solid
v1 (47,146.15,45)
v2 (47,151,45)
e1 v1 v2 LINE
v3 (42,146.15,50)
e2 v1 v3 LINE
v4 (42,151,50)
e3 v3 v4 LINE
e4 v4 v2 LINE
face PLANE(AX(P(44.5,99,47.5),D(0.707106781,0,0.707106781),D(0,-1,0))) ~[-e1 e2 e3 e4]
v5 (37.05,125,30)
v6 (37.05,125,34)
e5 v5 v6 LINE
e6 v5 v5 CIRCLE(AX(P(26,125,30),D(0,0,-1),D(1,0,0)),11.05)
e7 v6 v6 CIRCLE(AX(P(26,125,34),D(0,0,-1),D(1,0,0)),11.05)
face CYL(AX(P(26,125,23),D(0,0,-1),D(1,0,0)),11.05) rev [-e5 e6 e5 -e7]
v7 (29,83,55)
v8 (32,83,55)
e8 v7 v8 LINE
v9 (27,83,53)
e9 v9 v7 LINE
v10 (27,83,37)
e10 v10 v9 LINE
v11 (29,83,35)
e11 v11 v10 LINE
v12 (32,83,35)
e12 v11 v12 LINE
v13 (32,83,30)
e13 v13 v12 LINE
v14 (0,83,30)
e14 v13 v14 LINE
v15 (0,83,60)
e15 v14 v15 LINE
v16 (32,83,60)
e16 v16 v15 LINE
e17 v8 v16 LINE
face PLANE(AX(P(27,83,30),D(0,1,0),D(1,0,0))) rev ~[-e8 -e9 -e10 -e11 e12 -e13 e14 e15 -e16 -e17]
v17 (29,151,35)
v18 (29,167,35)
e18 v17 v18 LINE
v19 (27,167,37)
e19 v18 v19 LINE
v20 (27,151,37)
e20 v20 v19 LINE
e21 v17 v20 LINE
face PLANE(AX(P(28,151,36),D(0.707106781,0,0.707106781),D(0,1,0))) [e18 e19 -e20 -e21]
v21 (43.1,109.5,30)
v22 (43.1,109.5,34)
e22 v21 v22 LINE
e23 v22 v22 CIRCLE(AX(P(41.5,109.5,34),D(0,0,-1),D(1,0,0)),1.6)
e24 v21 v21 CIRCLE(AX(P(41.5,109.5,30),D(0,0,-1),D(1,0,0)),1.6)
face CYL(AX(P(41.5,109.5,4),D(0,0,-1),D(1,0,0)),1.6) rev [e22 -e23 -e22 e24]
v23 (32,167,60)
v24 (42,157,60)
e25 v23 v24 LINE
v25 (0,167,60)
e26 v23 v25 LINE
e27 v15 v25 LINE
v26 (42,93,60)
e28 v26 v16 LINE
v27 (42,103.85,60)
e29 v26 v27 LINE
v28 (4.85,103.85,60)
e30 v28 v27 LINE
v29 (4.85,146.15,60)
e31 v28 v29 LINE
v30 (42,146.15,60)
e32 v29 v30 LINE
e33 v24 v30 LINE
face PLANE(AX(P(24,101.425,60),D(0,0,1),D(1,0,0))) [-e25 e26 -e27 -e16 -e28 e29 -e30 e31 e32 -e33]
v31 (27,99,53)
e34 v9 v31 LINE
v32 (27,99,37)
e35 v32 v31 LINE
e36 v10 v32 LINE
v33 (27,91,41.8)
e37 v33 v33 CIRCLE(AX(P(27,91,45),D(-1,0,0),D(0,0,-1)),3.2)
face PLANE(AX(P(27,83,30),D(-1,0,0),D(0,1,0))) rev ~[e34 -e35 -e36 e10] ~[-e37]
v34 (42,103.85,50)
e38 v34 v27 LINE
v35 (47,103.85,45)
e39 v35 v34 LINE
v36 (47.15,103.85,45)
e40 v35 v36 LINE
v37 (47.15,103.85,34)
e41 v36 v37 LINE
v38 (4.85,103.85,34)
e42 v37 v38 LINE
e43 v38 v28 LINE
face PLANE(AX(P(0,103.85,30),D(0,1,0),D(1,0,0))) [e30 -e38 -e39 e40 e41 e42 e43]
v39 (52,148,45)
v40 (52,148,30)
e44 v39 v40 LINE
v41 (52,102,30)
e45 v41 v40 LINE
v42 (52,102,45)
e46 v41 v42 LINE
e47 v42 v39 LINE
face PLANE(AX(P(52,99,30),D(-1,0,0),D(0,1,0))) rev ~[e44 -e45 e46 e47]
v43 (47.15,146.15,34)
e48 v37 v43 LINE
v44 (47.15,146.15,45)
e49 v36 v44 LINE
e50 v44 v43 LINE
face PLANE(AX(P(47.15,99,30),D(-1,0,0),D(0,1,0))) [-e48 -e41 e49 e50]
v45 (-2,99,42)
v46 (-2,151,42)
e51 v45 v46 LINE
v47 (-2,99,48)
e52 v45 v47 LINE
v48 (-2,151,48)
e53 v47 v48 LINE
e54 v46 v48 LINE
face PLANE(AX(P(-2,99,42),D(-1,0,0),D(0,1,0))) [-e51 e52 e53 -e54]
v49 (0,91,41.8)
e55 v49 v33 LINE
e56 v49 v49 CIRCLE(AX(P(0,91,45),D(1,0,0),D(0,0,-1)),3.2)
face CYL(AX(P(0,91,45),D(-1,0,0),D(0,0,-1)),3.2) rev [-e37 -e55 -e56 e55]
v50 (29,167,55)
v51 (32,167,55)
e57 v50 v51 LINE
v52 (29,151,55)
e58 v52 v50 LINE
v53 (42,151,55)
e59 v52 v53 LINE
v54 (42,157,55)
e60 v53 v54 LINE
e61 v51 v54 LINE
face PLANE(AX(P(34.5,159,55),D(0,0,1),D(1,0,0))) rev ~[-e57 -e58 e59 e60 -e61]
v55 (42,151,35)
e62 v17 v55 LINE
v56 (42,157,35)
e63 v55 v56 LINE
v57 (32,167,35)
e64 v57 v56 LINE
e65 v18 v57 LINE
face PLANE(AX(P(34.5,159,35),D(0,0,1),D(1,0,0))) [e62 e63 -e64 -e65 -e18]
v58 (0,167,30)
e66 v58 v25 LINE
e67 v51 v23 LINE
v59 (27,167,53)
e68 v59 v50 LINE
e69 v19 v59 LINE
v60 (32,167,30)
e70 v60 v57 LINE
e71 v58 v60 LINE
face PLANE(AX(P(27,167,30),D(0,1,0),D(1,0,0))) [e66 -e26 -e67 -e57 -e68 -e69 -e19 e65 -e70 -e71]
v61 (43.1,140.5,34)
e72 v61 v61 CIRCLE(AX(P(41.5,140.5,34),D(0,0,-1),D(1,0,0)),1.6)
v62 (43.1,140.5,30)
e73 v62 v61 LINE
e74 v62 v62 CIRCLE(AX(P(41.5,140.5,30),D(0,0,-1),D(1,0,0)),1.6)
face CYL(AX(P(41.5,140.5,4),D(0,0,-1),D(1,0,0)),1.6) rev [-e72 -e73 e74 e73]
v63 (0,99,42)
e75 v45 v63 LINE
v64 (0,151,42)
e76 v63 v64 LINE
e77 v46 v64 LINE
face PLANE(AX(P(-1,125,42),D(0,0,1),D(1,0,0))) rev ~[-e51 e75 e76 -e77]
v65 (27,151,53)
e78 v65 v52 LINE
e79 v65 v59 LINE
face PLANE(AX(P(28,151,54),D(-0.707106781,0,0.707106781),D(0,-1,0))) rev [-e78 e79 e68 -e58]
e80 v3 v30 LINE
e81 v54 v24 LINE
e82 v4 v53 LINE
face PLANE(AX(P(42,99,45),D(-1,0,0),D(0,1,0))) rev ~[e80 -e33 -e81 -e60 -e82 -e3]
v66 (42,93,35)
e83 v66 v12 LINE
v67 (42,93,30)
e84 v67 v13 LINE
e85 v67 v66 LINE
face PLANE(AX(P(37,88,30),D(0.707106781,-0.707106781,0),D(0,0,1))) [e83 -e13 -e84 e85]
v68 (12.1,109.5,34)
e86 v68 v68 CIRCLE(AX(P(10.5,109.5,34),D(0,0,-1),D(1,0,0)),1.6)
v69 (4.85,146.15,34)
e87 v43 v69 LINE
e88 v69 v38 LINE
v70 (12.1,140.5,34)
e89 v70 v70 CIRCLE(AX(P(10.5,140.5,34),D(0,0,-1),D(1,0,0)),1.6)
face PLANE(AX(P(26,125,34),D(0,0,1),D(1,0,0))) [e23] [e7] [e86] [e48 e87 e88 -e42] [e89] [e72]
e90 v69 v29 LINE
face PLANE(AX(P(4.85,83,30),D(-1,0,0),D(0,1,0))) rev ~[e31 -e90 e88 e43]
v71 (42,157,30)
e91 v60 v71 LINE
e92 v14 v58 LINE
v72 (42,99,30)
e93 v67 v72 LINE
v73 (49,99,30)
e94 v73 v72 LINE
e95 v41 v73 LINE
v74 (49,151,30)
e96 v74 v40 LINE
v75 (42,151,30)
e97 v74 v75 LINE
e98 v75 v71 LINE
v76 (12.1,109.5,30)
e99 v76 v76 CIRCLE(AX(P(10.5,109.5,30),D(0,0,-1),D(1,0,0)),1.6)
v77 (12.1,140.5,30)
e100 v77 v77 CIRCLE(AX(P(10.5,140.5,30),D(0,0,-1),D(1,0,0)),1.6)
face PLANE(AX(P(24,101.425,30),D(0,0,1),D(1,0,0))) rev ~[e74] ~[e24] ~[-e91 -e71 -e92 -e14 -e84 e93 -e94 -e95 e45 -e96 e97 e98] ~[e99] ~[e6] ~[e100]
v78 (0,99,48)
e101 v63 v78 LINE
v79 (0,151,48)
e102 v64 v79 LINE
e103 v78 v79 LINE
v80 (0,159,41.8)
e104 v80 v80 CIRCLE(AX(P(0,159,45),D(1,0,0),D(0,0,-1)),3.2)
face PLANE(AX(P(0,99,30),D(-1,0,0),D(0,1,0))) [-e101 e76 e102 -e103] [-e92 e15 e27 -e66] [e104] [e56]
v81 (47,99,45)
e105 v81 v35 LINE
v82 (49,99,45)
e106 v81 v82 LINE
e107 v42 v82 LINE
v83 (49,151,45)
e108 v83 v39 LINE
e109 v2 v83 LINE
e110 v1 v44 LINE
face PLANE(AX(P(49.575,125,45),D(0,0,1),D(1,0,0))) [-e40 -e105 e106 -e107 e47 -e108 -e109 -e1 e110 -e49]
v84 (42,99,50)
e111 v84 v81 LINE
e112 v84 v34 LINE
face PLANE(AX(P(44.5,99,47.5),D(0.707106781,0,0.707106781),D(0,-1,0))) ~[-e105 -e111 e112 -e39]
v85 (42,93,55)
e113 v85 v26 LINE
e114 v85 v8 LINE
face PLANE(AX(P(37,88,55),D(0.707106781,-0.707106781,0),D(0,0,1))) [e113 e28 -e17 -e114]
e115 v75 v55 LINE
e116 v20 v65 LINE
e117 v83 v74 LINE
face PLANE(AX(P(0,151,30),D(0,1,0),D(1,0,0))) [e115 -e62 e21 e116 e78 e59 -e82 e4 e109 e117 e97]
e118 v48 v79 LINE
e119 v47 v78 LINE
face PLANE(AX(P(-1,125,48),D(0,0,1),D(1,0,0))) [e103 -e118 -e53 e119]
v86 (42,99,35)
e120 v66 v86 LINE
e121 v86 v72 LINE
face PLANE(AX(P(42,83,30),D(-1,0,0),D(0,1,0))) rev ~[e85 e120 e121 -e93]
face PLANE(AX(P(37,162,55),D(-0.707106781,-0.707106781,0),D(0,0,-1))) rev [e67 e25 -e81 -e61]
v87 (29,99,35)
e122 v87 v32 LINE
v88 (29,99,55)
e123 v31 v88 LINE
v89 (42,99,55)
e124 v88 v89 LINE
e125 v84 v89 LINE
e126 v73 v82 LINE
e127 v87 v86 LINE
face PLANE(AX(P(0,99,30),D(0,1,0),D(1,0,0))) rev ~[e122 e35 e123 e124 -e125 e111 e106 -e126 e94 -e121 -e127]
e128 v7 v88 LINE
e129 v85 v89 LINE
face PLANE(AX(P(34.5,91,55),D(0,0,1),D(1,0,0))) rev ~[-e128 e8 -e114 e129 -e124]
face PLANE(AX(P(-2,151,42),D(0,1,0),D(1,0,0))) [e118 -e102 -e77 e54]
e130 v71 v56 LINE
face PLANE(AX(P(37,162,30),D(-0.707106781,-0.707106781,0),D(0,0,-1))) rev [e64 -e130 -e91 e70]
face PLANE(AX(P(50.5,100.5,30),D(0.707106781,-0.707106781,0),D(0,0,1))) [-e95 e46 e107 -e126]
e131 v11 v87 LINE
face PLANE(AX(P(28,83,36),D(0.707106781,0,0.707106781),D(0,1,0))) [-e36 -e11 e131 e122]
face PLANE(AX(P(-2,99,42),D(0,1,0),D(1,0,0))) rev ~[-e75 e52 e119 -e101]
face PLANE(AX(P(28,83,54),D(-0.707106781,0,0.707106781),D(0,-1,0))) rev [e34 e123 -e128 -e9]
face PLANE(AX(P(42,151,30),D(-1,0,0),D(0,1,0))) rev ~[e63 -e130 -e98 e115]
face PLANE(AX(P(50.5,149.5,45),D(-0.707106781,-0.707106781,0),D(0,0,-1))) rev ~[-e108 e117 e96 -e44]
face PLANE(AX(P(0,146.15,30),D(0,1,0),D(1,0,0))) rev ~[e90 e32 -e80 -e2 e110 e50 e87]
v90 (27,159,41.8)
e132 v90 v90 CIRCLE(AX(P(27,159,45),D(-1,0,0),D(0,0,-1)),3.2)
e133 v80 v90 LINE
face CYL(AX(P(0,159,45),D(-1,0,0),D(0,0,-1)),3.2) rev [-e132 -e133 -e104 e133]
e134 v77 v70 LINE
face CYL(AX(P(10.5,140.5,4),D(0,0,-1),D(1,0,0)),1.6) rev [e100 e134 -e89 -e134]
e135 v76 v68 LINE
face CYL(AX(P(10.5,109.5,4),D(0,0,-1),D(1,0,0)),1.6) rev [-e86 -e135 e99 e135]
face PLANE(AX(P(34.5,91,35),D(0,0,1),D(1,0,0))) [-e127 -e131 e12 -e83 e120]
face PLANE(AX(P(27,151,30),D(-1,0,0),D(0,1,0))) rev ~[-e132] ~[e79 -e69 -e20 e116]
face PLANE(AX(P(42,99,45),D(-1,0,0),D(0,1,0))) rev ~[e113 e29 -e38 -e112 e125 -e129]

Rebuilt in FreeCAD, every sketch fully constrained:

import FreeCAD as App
import Part
import Sketcher

V = App.Vector
Q = App.Units.Quantity


def edges_at(feature, points):
    """Names of the edges that pass closest to the given points."""
    edges = feature.Shape.Edges
    near = lambda p: min(range(len(edges)), key=lambda i: edges[i].distToShape(Part.Vertex(*p))[0])
    return sorted({f"Edge{near(p) + 1}" for p in points})

doc = App.newDocument("Part")
body = doc.addObject("PartDesign::Body", "Body")

# Sketch on XY plane
sketch1 = doc.addObject("Sketcher::SketchObject", "Sketch")
body.addObject(sketch1)
sketch1.AttachmentSupport = (doc.XY_Plane, [""])
sketch1.MapMode = "FlatFace"
sketch1.AttachmentOffset = App.Placement(V(0, 0, 45), App.Rotation())
sketch1.addGeometry(Part.LineSegment(V(42, 151, 0), V(42, 99, 0)), False)
sketch1.addGeometry(Part.LineSegment(V(42, 99, 0), V(54, 99, 0)), False)
sketch1.addGeometry(Part.LineSegment(V(54, 99, 0), V(54, 151, 0)), False)
sketch1.addGeometry(Part.LineSegment(V(54, 151, 0), V(42, 151, 0)), False)
sketch1.addConstraint(Sketcher.Constraint("Coincident", 0, 2, 1, 1))
sketch1.addConstraint(Sketcher.Constraint("Coincident", 1, 2, 2, 1))
sketch1.addConstraint(Sketcher.Constraint("Coincident", 2, 2, 3, 1))
sketch1.addConstraint(Sketcher.Constraint("Coincident", 3, 2, 0, 1))
sketch1.addConstraint(Sketcher.Constraint("Vertical", 0))
sketch1.addConstraint(Sketcher.Constraint("Horizontal", 1))
sketch1.addConstraint(Sketcher.Constraint("Vertical", 2))
sketch1.addConstraint(Sketcher.Constraint("Horizontal", 3))
sketch1.addConstraint(Sketcher.Constraint("DistanceX", 1, 1, 1, 2, Q("12 mm")))
sketch1.addConstraint(Sketcher.Constraint("DistanceY", 0, 2, 0, 1, Q("52 mm")))
sketch1.addConstraint(Sketcher.Constraint("DistanceX", -1, 1, 0, 2, Q("42 mm")))
sketch1.addConstraint(Sketcher.Constraint("DistanceY", -1, 1, 0, 2, Q("99 mm")))
pad1 = doc.addObject("PartDesign::Pad", "Pad")
body.addObject(pad1)
pad1.Profile = sketch1
pad1.Length = 15
doc.recompute()

chamfer = doc.addObject("PartDesign::Chamfer", "Chamfer")
body.addObject(chamfer)
chamfer.Base = (pad1, edges_at(pad1, [(42, 125, 45)]))
chamfer.Size = 5
body2 = doc.addObject("PartDesign::Body", "Body001")

# Sketch on YZ plane
sketch2 = doc.addObject("Sketcher::SketchObject", "Sketch001")
body2.addObject(sketch2)
sketch2.AttachmentSupport = (doc.getObject("YZ_Plane001"), [""])
sketch2.MapMode = "FlatFace"
sketch2.addGeometry(Part.Circle(V(91, 45, 0), V(0, 0, 1), 3.2), False)
sketch2.addConstraint(Sketcher.Constraint("Diameter", 0, Q("6.4 mm")))
sketch2.addConstraint(Sketcher.Constraint("DistanceX", -1, 1, 0, 3, Q("91 mm")))
sketch2.addConstraint(Sketcher.Constraint("DistanceY", -1, 1, 0, 3, Q("45 mm")))
pad2 = doc.addObject("PartDesign::Pad", "Pad001")
body2.addObject(pad2)
pad2.Profile = sketch2
pad2.Length = 46
body3 = doc.addObject("PartDesign::Body", "Body002")
body3.AllowCompound = True

# Sketch on YZ plane
sketch3 = doc.addObject("Sketcher::SketchObject", "Sketch002")
body3.addObject(sketch3)
sketch3.AttachmentSupport = (doc.getObject("YZ_Plane002"), [""])
sketch3.MapMode = "FlatFace"
sketch3.addGeometry(Part.Circle(V(159, 45, 0), V(0, 0, 1), 3.2), False)
sketch3.addConstraint(Sketcher.Constraint("Diameter", 0, Q("6.4 mm")))
sketch3.addConstraint(Sketcher.Constraint("DistanceX", -1, 1, 0, 3, Q("159 mm")))
sketch3.addConstraint(Sketcher.Constraint("DistanceY", -1, 1, 0, 3, Q("45 mm")))
pad3 = doc.addObject("PartDesign::Pad", "Pad002")
body3.addObject(pad3)
pad3.Profile = sketch3
pad3.Length = 46
doc.recompute()

boolean = doc.addObject("PartDesign::Boolean", "Boolean")
body3.addObject(boolean)
boolean.Type = "Fuse"
boolean.addObjects([body2])
body4 = doc.addObject("PartDesign::Body", "Body003")

# Sketch on XY plane
sketch4 = doc.addObject("Sketcher::SketchObject", "Sketch003")
body4.addObject(sketch4)
sketch4.AttachmentSupport = (doc.getObject("XY_Plane003"), [""])
sketch4.MapMode = "FlatFace"
sketch4.AttachmentOffset = App.Placement(V(0, 0, 23), App.Rotation())
sketch4.addGeometry(Part.Circle(V(26, 125, 0), V(0, 0, 1), 11.05), False)
sketch4.addConstraint(Sketcher.Constraint("Diameter", 0, Q("22.1 mm")))
sketch4.addConstraint(Sketcher.Constraint("DistanceX", -1, 1, 0, 3, Q("26 mm")))
sketch4.addConstraint(Sketcher.Constraint("DistanceY", -1, 1, 0, 3, Q("125 mm")))
pad4 = doc.addObject("PartDesign::Pad", "Pad003")
body4.addObject(pad4)
pad4.Profile = sketch4
pad4.Length = 23
body5 = doc.addObject("PartDesign::Body", "Body004")

# Sketch on XY plane
sketch5 = doc.addObject("Sketcher::SketchObject", "Sketch004")
body5.addObject(sketch5)
sketch5.AttachmentSupport = (doc.getObject("XY_Plane004"), [""])
sketch5.MapMode = "FlatFace"
sketch5.AttachmentOffset = App.Placement(V(0, 0, 4), App.Rotation())
sketch5.addGeometry(Part.Circle(V(10.5, 109.5, 0), V(0, 0, 1), 1.6), False)
sketch5.addConstraint(Sketcher.Constraint("Diameter", 0, Q("3.2 mm")))
sketch5.addConstraint(Sketcher.Constraint("DistanceX", -1, 1, 0, 3, Q("10.5 mm")))
sketch5.addConstraint(Sketcher.Constraint("DistanceY", -1, 1, 0, 3, Q("109.5 mm")))
pad5 = doc.addObject("PartDesign::Pad", "Pad004")
body5.addObject(pad5)
pad5.Profile = sketch5
pad5.Length = 47
body6 = doc.addObject("PartDesign::Body", "Body005")

# Sketch on XY plane
sketch6 = doc.addObject("Sketcher::SketchObject", "Sketch005")
body6.addObject(sketch6)
sketch6.AttachmentSupport = (doc.getObject("XY_Plane005"), [""])
sketch6.MapMode = "FlatFace"
sketch6.AttachmentOffset = App.Placement(V(0, 0, 4), App.Rotation())
sketch6.addGeometry(Part.Circle(V(10.5, 140.5, 0), V(0, 0, 1), 1.6), False)
sketch6.addConstraint(Sketcher.Constraint("Diameter", 0, Q("3.2 mm")))
sketch6.addConstraint(Sketcher.Constraint("DistanceX", -1, 1, 0, 3, Q("10.5 mm")))
sketch6.addConstraint(Sketcher.Constraint("DistanceY", -1, 1, 0, 3, Q("140.5 mm")))
pad6 = doc.addObject("PartDesign::Pad", "Pad005")
body6.addObject(pad6)
pad6.Profile = sketch6
pad6.Length = 47
body7 = doc.addObject("PartDesign::Body", "Body006")

# Sketch on XY plane
sketch7 = doc.addObject("Sketcher::SketchObject", "Sketch006")
body7.addObject(sketch7)
sketch7.AttachmentSupport = (doc.getObject("XY_Plane006"), [""])
sketch7.MapMode = "FlatFace"
sketch7.AttachmentOffset = App.Placement(V(0, 0, 4), App.Rotation())
sketch7.addGeometry(Part.Circle(V(41.5, 140.5, 0), V(0, 0, 1), 1.6), False)
sketch7.addConstraint(Sketcher.Constraint("Diameter", 0, Q("3.2 mm")))
sketch7.addConstraint(Sketcher.Constraint("DistanceX", -1, 1, 0, 3, Q("41.5 mm")))
sketch7.addConstraint(Sketcher.Constraint("DistanceY", -1, 1, 0, 3, Q("140.5 mm")))
pad7 = doc.addObject("PartDesign::Pad", "Pad006")
body7.addObject(pad7)
pad7.Profile = sketch7
pad7.Length = 47
body8 = doc.addObject("PartDesign::Body", "Body007")
body8.AllowCompound = True

# Sketch on XY plane
sketch8 = doc.addObject("Sketcher::SketchObject", "Sketch007")
body8.addObject(sketch8)
sketch8.AttachmentSupport = (doc.getObject("XY_Plane007"), [""])
sketch8.MapMode = "FlatFace"
sketch8.AttachmentOffset = App.Placement(V(0, 0, 4), App.Rotation())
sketch8.addGeometry(Part.Circle(V(41.5, 109.5, 0), V(0, 0, 1), 1.6), False)
sketch8.addConstraint(Sketcher.Constraint("Diameter", 0, Q("3.2 mm")))
sketch8.addConstraint(Sketcher.Constraint("DistanceX", -1, 1, 0, 3, Q("41.5 mm")))
sketch8.addConstraint(Sketcher.Constraint("DistanceY", -1, 1, 0, 3, Q("109.5 mm")))
pad8 = doc.addObject("PartDesign::Pad", "Pad007")
body8.addObject(pad8)
pad8.Profile = sketch8
pad8.Length = 47
doc.recompute()

boolean2 = doc.addObject("PartDesign::Boolean", "Boolean001")
body8.addObject(boolean2)
boolean2.Type = "Fuse"
boolean2.addObjects([body5])
doc.recompute()

boolean3 = doc.addObject("PartDesign::Boolean", "Boolean002")
body8.addObject(boolean3)
boolean3.Type = "Fuse"
boolean3.addObjects([body6])
doc.recompute()

boolean4 = doc.addObject("PartDesign::Boolean", "Boolean003")
body8.addObject(boolean4)
boolean4.Type = "Fuse"
boolean4.addObjects([body7])
body9 = doc.addObject("PartDesign::Body", "Body008")

# Sketch on XY plane
sketch9 = doc.addObject("Sketcher::SketchObject", "Sketch008")
body9.addObject(sketch9)
sketch9.AttachmentSupport = (doc.getObject("XY_Plane008"), [""])
sketch9.MapMode = "FlatFace"
sketch9.AttachmentOffset = App.Placement(V(0, 0, 30), App.Rotation())
sketch9.addGeometry(Part.LineSegment(V(0, 151, 0), V(0, 99, 0)), False)
sketch9.addGeometry(Part.LineSegment(V(0, 99, 0), V(52, 99, 0)), False)
sketch9.addGeometry(Part.LineSegment(V(52, 99, 0), V(52, 151, 0)), False)
sketch9.addGeometry(Part.LineSegment(V(52, 151, 0), V(0, 151, 0)), False)
sketch9.addConstraint(Sketcher.Constraint("Coincident", 0, 2, 1, 1))
sketch9.addConstraint(Sketcher.Constraint("Coincident", 1, 2, 2, 1))
sketch9.addConstraint(Sketcher.Constraint("Coincident", 2, 2, 3, 1))
sketch9.addConstraint(Sketcher.Constraint("Coincident", 3, 2, 0, 1))
sketch9.addConstraint(Sketcher.Constraint("Vertical", 0))
sketch9.addConstraint(Sketcher.Constraint("Horizontal", 1))
sketch9.addConstraint(Sketcher.Constraint("Vertical", 2))
sketch9.addConstraint(Sketcher.Constraint("Horizontal", 3))
sketch9.addConstraint(Sketcher.Constraint("PointOnObject", 0, 2, -2))
sketch9.addConstraint(Sketcher.Constraint("Equal", 3, 0))
sketch9.addConstraint(Sketcher.Constraint("DistanceX", 1, 1, 1, 2, Q("52 mm")))
sketch9.addConstraint(Sketcher.Constraint("DistanceY", -1, 1, 0, 2, Q("99 mm")))
pad9 = doc.addObject("PartDesign::Pad", "Pad008")
body9.addObject(pad9)
pad9.Profile = sketch9
pad9.Length = 4
doc.recompute()

boolean5 = doc.addObject("PartDesign::Boolean", "Boolean004")
body9.addObject(boolean5)
boolean5.Type = "Cut"
boolean5.addObjects([body8])
doc.recompute()

boolean6 = doc.addObject("PartDesign::Boolean", "Boolean005")
body9.addObject(boolean6)
boolean6.Type = "Cut"
boolean6.addObjects([body4])
body10 = doc.addObject("PartDesign::Body", "Body009")

# Sketch on XY plane
sketch10 = doc.addObject("Sketcher::SketchObject", "Sketch009")
body10.addObject(sketch10)
sketch10.AttachmentSupport = (doc.getObject("XY_Plane009"), [""])
sketch10.MapMode = "FlatFace"
sketch10.AttachmentOffset = App.Placement(V(0, 0, 30), App.Rotation())
sketch10.addGeometry(Part.LineSegment(V(0, 99, 0), V(0, 83, 0)), False)
sketch10.addGeometry(Part.LineSegment(V(0, 83, 0), V(27, 83, 0)), False)
sketch10.addGeometry(Part.LineSegment(V(27, 83, 0), V(27, 99, 0)), False)
sketch10.addGeometry(Part.LineSegment(V(27, 99, 0), V(0, 99, 0)), False)
sketch10.addConstraint(Sketcher.Constraint("Coincident", 0, 2, 1, 1))
sketch10.addConstraint(Sketcher.Constraint("Coincident", 1, 2, 2, 1))
sketch10.addConstraint(Sketcher.Constraint("Coincident", 2, 2, 3, 1))
sketch10.addConstraint(Sketcher.Constraint("Coincident", 3, 2, 0, 1))
sketch10.addConstraint(Sketcher.Constraint("Vertical", 0))
sketch10.addConstraint(Sketcher.Constraint("Horizontal", 1))
sketch10.addConstraint(Sketcher.Constraint("Vertical", 2))
sketch10.addConstraint(Sketcher.Constraint("Horizontal", 3))
sketch10.addConstraint(Sketcher.Constraint("PointOnObject", 0, 2, -2))
sketch10.addConstraint(Sketcher.Constraint("DistanceX", 1, 1, 1, 2, Q("27 mm")))
sketch10.addConstraint(Sketcher.Constraint("DistanceY", 0, 2, 0, 1, Q("16 mm")))
sketch10.addConstraint(Sketcher.Constraint("DistanceY", -1, 1, 0, 2, Q("83 mm")))
pad10 = doc.addObject("PartDesign::Pad", "Pad009")
body10.addObject(pad10)
pad10.Profile = sketch10
pad10.Length = 30
body11 = doc.addObject("PartDesign::Body", "Body010")

# Sketch on XY plane
sketch11 = doc.addObject("Sketcher::SketchObject", "Sketch010")
body11.addObject(sketch11)
sketch11.AttachmentSupport = (doc.getObject("XY_Plane010"), [""])
sketch11.MapMode = "FlatFace"
sketch11.AttachmentOffset = App.Placement(V(0, 0, 30), App.Rotation())
sketch11.addGeometry(Part.LineSegment(V(27, 99, 0), V(27, 83, 0)), False)
sketch11.addGeometry(Part.LineSegment(V(27, 83, 0), V(42, 83, 0)), False)
sketch11.addGeometry(Part.LineSegment(V(42, 83, 0), V(42, 99, 0)), False)
sketch11.addGeometry(Part.LineSegment(V(42, 99, 0), V(27, 99, 0)), False)
sketch11.addConstraint(Sketcher.Constraint("Coincident", 0, 2, 1, 1))
sketch11.addConstraint(Sketcher.Constraint("Coincident", 1, 2, 2, 1))
sketch11.addConstraint(Sketcher.Constraint("Coincident", 2, 2, 3, 1))
sketch11.addConstraint(Sketcher.Constraint("Coincident", 3, 2, 0, 1))
sketch11.addConstraint(Sketcher.Constraint("Vertical", 0))
sketch11.addConstraint(Sketcher.Constraint("Horizontal", 1))
sketch11.addConstraint(Sketcher.Constraint("Vertical", 2))
sketch11.addConstraint(Sketcher.Constraint("Horizontal", 3))
sketch11.addConstraint(Sketcher.Constraint("DistanceX", 1, 1, 1, 2, Q("15 mm")))
sketch11.addConstraint(Sketcher.Constraint("DistanceY", 0, 2, 0, 1, Q("16 mm")))
sketch11.addConstraint(Sketcher.Constraint("DistanceX", -1, 1, 0, 2, Q("27 mm")))
sketch11.addConstraint(Sketcher.Constraint("DistanceY", -1, 1, 0, 2, Q("83 mm")))
pad11 = doc.addObject("PartDesign::Pad", "Pad010")
body11.addObject(pad11)
pad11.Profile = sketch11
pad11.Length = 5
body12 = doc.addObject("PartDesign::Body", "Body011")

# Sketch on XY plane
sketch12 = doc.addObject("Sketcher::SketchObject", "Sketch011")
body12.addObject(sketch12)
sketch12.AttachmentSupport = (doc.getObject("XY_Plane011"), [""])
sketch12.MapMode = "FlatFace"
sketch12.AttachmentOffset = App.Placement(V(0, 0, 55), App.Rotation())
sketch12.addGeometry(Part.LineSegment(V(27, 167, 0), V(27, 151, 0)), False)
sketch12.addGeometry(Part.LineSegment(V(27, 151, 0), V(42, 151, 0)), False)
sketch12.addGeometry(Part.LineSegment(V(42, 151, 0), V(42, 167, 0)), False)
sketch12.addGeometry(Part.LineSegment(V(42, 167, 0), V(27, 167, 0)), False)
sketch12.addConstraint(Sketcher.Constraint("Coincident", 0, 2, 1, 1))
sketch12.addConstraint(Sketcher.Constraint("Coincident", 1, 2, 2, 1))
sketch12.addConstraint(Sketcher.Constraint("Coincident", 2, 2, 3, 1))
sketch12.addConstraint(Sketcher.Constraint("Coincident", 3, 2, 0, 1))
sketch12.addConstraint(Sketcher.Constraint("Vertical", 0))
sketch12.addConstraint(Sketcher.Constraint("Horizontal", 1))
sketch12.addConstraint(Sketcher.Constraint("Vertical", 2))
sketch12.addConstraint(Sketcher.Constraint("Horizontal", 3))
sketch12.addConstraint(Sketcher.Constraint("DistanceX", 1, 1, 1, 2, Q("15 mm")))
sketch12.addConstraint(Sketcher.Constraint("DistanceY", 0, 2, 0, 1, Q("16 mm")))
sketch12.addConstraint(Sketcher.Constraint("DistanceX", -1, 1, 0, 2, Q("27 mm")))
sketch12.addConstraint(Sketcher.Constraint("DistanceY", -1, 1, 0, 2, Q("151 mm")))
pad12 = doc.addObject("PartDesign::Pad", "Pad011")
body12.addObject(pad12)
pad12.Profile = sketch12
pad12.Length = 5
body13 = doc.addObject("PartDesign::Body", "Body012")

# Sketch on XY plane
sketch13 = doc.addObject("Sketcher::SketchObject", "Sketch012")
body13.addObject(sketch13)
sketch13.AttachmentSupport = (doc.getObject("XY_Plane012"), [""])
sketch13.MapMode = "FlatFace"
sketch13.AttachmentOffset = App.Placement(V(0, 0, 30), App.Rotation())
sketch13.addGeometry(Part.LineSegment(V(0, 167, 0), V(0, 151, 0)), False)
sketch13.addGeometry(Part.LineSegment(V(0, 151, 0), V(27, 151, 0)), False)
sketch13.addGeometry(Part.LineSegment(V(27, 151, 0), V(27, 167, 0)), False)
sketch13.addGeometry(Part.LineSegment(V(27, 167, 0), V(0, 167, 0)), False)
sketch13.addConstraint(Sketcher.Constraint("Coincident", 0, 2, 1, 1))
sketch13.addConstraint(Sketcher.Constraint("Coincident", 1, 2, 2, 1))
sketch13.addConstraint(Sketcher.Constraint("Coincident", 2, 2, 3, 1))
sketch13.addConstraint(Sketcher.Constraint("Coincident", 3, 2, 0, 1))
sketch13.addConstraint(Sketcher.Constraint("Vertical", 0))
sketch13.addConstraint(Sketcher.Constraint("Horizontal", 1))
sketch13.addConstraint(Sketcher.Constraint("Vertical", 2))
sketch13.addConstraint(Sketcher.Constraint("Horizontal", 3))
sketch13.addConstraint(Sketcher.Constraint("PointOnObject", 0, 2, -2))
sketch13.addConstraint(Sketcher.Constraint("DistanceX", 1, 1, 1, 2, Q("27 mm")))
sketch13.addConstraint(Sketcher.Constraint("DistanceY", 0, 2, 0, 1, Q("16 mm")))
sketch13.addConstraint(Sketcher.Constraint("DistanceY", -1, 1, 0, 2, Q("151 mm")))
pad13 = doc.addObject("PartDesign::Pad", "Pad012")
body13.addObject(pad13)
pad13.Profile = sketch13
pad13.Length = 30
body14 = doc.addObject("PartDesign::Body", "Body013")

# Sketch on XY plane
sketch14 = doc.addObject("Sketcher::SketchObject", "Sketch013")
body14.addObject(sketch14)
sketch14.AttachmentSupport = (doc.getObject("XY_Plane013"), [""])
sketch14.MapMode = "FlatFace"
sketch14.AttachmentOffset = App.Placement(V(0, 0, 30), App.Rotation())
sketch14.addGeometry(Part.LineSegment(V(27, 167, 0), V(27, 151, 0)), False)
sketch14.addGeometry(Part.LineSegment(V(27, 151, 0), V(42, 151, 0)), False)
sketch14.addGeometry(Part.LineSegment(V(42, 151, 0), V(42, 167, 0)), False)
sketch14.addGeometry(Part.LineSegment(V(42, 167, 0), V(27, 167, 0)), False)
sketch14.addConstraint(Sketcher.Constraint("Coincident", 0, 2, 1, 1))
sketch14.addConstraint(Sketcher.Constraint("Coincident", 1, 2, 2, 1))
sketch14.addConstraint(Sketcher.Constraint("Coincident", 2, 2, 3, 1))
sketch14.addConstraint(Sketcher.Constraint("Coincident", 3, 2, 0, 1))
sketch14.addConstraint(Sketcher.Constraint("Vertical", 0))
sketch14.addConstraint(Sketcher.Constraint("Horizontal", 1))
sketch14.addConstraint(Sketcher.Constraint("Vertical", 2))
sketch14.addConstraint(Sketcher.Constraint("Horizontal", 3))
sketch14.addConstraint(Sketcher.Constraint("DistanceX", 1, 1, 1, 2, Q("15 mm")))
sketch14.addConstraint(Sketcher.Constraint("DistanceY", 0, 2, 0, 1, Q("16 mm")))
sketch14.addConstraint(Sketcher.Constraint("DistanceX", -1, 1, 0, 2, Q("27 mm")))
sketch14.addConstraint(Sketcher.Constraint("DistanceY", -1, 1, 0, 2, Q("151 mm")))
pad14 = doc.addObject("PartDesign::Pad", "Pad013")
body14.addObject(pad14)
pad14.Profile = sketch14
pad14.Length = 5
body15 = doc.addObject("PartDesign::Body", "Body014")

# Sketch on XY plane
sketch15 = doc.addObject("Sketcher::SketchObject", "Sketch014")
body15.addObject(sketch15)
sketch15.AttachmentSupport = (doc.getObject("XY_Plane014"), [""])
sketch15.MapMode = "FlatFace"
sketch15.AttachmentOffset = App.Placement(V(0, 0, 30), App.Rotation())
sketch15.addGeometry(Part.LineSegment(V(0, 151, 0), V(0, 146.15, 0)), False)
sketch15.addGeometry(Part.LineSegment(V(0, 146.15, 0), V(48, 146.15, 0)), False)
sketch15.addGeometry(Part.LineSegment(V(48, 146.15, 0), V(48, 151, 0)), False)
sketch15.addGeometry(Part.LineSegment(V(48, 151, 0), V(0, 151, 0)), False)
sketch15.addConstraint(Sketcher.Constraint("Coincident", 0, 2, 1, 1))
sketch15.addConstraint(Sketcher.Constraint("Coincident", 1, 2, 2, 1))
sketch15.addConstraint(Sketcher.Constraint("Coincident", 2, 2, 3, 1))
sketch15.addConstraint(Sketcher.Constraint("Coincident", 3, 2, 0, 1))
sketch15.addConstraint(Sketcher.Constraint("Vertical", 0))
sketch15.addConstraint(Sketcher.Constraint("Horizontal", 1))
sketch15.addConstraint(Sketcher.Constraint("Vertical", 2))
sketch15.addConstraint(Sketcher.Constraint("Horizontal", 3))
sketch15.addConstraint(Sketcher.Constraint("PointOnObject", 0, 2, -2))
sketch15.addConstraint(Sketcher.Constraint("DistanceX", 1, 1, 1, 2, Q("48 mm")))
sketch15.addConstraint(Sketcher.Constraint("DistanceY", -1, 1, 2, 2, Q("151 mm")))
sketch15.addConstraint(Sketcher.Constraint("DistanceY", 0, 2, 0, 1, Q("4.85 mm")))
pad15 = doc.addObject("PartDesign::Pad", "Pad014")
body15.addObject(pad15)
pad15.Profile = sketch15
pad15.Length = 30
body16 = doc.addObject("PartDesign::Body", "Body015")

# Sketch on XY plane
sketch16 = doc.addObject("Sketcher::SketchObject", "Sketch015")
body16.addObject(sketch16)
sketch16.AttachmentSupport = (doc.getObject("XY_Plane015"), [""])
sketch16.MapMode = "FlatFace"
sketch16.AttachmentOffset = App.Placement(V(0, 0, 30), App.Rotation())
sketch16.addGeometry(Part.LineSegment(V(0, 103.85, 0), V(0, 99, 0)), False)
sketch16.addGeometry(Part.LineSegment(V(0, 99, 0), V(48, 99, 0)), False)
sketch16.addGeometry(Part.LineSegment(V(48, 99, 0), V(48, 103.85, 0)), False)
sketch16.addGeometry(Part.LineSegment(V(48, 103.85, 0), V(0, 103.85, 0)), False)
sketch16.addConstraint(Sketcher.Constraint("Coincident", 0, 2, 1, 1))
sketch16.addConstraint(Sketcher.Constraint("Coincident", 1, 2, 2, 1))
sketch16.addConstraint(Sketcher.Constraint("Coincident", 2, 2, 3, 1))
sketch16.addConstraint(Sketcher.Constraint("Coincident", 3, 2, 0, 1))
sketch16.addConstraint(Sketcher.Constraint("Vertical", 0))
sketch16.addConstraint(Sketcher.Constraint("Horizontal", 1))
sketch16.addConstraint(Sketcher.Constraint("Vertical", 2))
sketch16.addConstraint(Sketcher.Constraint("Horizontal", 3))
sketch16.addConstraint(Sketcher.Constraint("PointOnObject", 0, 2, -2))
sketch16.addConstraint(Sketcher.Constraint("DistanceX", 1, 1, 1, 2, Q("48 mm")))
sketch16.addConstraint(Sketcher.Constraint("DistanceY", -1, 1, 0, 2, Q("99 mm")))
sketch16.addConstraint(Sketcher.Constraint("DistanceY", 0, 2, 0, 1, Q("4.85 mm")))
pad16 = doc.addObject("PartDesign::Pad", "Pad015")
body16.addObject(pad16)
pad16.Profile = sketch16
pad16.Length = 30
body17 = doc.addObject("PartDesign::Body", "Body016")

# Sketch on XY plane
sketch17 = doc.addObject("Sketcher::SketchObject", "Sketch016")
body17.addObject(sketch17)
sketch17.AttachmentSupport = (doc.getObject("XY_Plane016"), [""])
sketch17.MapMode = "FlatFace"
sketch17.AttachmentOffset = App.Placement(V(0, 0, 30), App.Rotation())
sketch17.addGeometry(Part.LineSegment(V(0, 167, 0), V(0, 83, 0)), False)
sketch17.addGeometry(Part.LineSegment(V(0, 83, 0), V(4.85, 83, 0)), False)
sketch17.addGeometry(Part.LineSegment(V(4.85, 83, 0), V(4.85, 167, 0)), False)
sketch17.addGeometry(Part.LineSegment(V(4.85, 167, 0), V(0, 167, 0)), False)
sketch17.addConstraint(Sketcher.Constraint("Coincident", 0, 2, 1, 1))
sketch17.addConstraint(Sketcher.Constraint("Coincident", 1, 2, 2, 1))
sketch17.addConstraint(Sketcher.Constraint("Coincident", 2, 2, 3, 1))
sketch17.addConstraint(Sketcher.Constraint("Coincident", 3, 2, 0, 1))
sketch17.addConstraint(Sketcher.Constraint("Vertical", 0))
sketch17.addConstraint(Sketcher.Constraint("Horizontal", 1))
sketch17.addConstraint(Sketcher.Constraint("Vertical", 2))
sketch17.addConstraint(Sketcher.Constraint("Horizontal", 3))
sketch17.addConstraint(Sketcher.Constraint("PointOnObject", 0, 2, -2))
sketch17.addConstraint(Sketcher.Constraint("DistanceY", 0, 2, 0, 1, Q("84 mm")))
sketch17.addConstraint(Sketcher.Constraint("DistanceY", -1, 1, 0, 2, Q("83 mm")))
sketch17.addConstraint(Sketcher.Constraint("DistanceX", 1, 1, 1, 2, Q("4.85 mm")))
pad17 = doc.addObject("PartDesign::Pad", "Pad016")
body17.addObject(pad17)
pad17.Profile = sketch17
pad17.Length = 30
body18 = doc.addObject("PartDesign::Body", "Body017")
body18.AllowCompound = True

# Sketch on XY plane
sketch18 = doc.addObject("Sketcher::SketchObject", "Sketch017")
body18.addObject(sketch18)
sketch18.AttachmentSupport = (doc.getObject("XY_Plane017"), [""])
sketch18.MapMode = "FlatFace"
sketch18.AttachmentOffset = App.Placement(V(0, 0, 55), App.Rotation())
sketch18.addGeometry(Part.LineSegment(V(27, 99, 0), V(27, 83, 0)), False)
sketch18.addGeometry(Part.LineSegment(V(27, 83, 0), V(42, 83, 0)), False)
sketch18.addGeometry(Part.LineSegment(V(42, 83, 0), V(42, 99, 0)), False)
sketch18.addGeometry(Part.LineSegment(V(42, 99, 0), V(27, 99, 0)), False)
sketch18.addConstraint(Sketcher.Constraint("Coincident", 0, 2, 1, 1))
sketch18.addConstraint(Sketcher.Constraint("Coincident", 1, 2, 2, 1))
sketch18.addConstraint(Sketcher.Constraint("Coincident", 2, 2, 3, 1))
sketch18.addConstraint(Sketcher.Constraint("Coincident", 3, 2, 0, 1))
sketch18.addConstraint(Sketcher.Constraint("Vertical", 0))
sketch18.addConstraint(Sketcher.Constraint("Horizontal", 1))
sketch18.addConstraint(Sketcher.Constraint("Vertical", 2))
sketch18.addConstraint(Sketcher.Constraint("Horizontal", 3))
sketch18.addConstraint(Sketcher.Constraint("DistanceX", 1, 1, 1, 2, Q("15 mm")))
sketch18.addConstraint(Sketcher.Constraint("DistanceY", 0, 2, 0, 1, Q("16 mm")))
sketch18.addConstraint(Sketcher.Constraint("DistanceX", -1, 1, 0, 2, Q("27 mm")))
sketch18.addConstraint(Sketcher.Constraint("DistanceY", -1, 1, 0, 2, Q("83 mm")))
pad18 = doc.addObject("PartDesign::Pad", "Pad017")
body18.addObject(pad18)
pad18.Profile = sketch18
pad18.Length = 5
doc.recompute()

boolean7 = doc.addObject("PartDesign::Boolean", "Boolean006")
body18.addObject(boolean7)
boolean7.Type = "Fuse"
boolean7.addObjects([body10])
doc.recompute()

boolean8 = doc.addObject("PartDesign::Boolean", "Boolean007")
body18.addObject(boolean8)
boolean8.Type = "Fuse"
boolean8.addObjects([body11])
doc.recompute()

boolean9 = doc.addObject("PartDesign::Boolean", "Boolean008")
body18.addObject(boolean9)
boolean9.Type = "Fuse"
boolean9.addObjects([body12])
doc.recompute()

boolean10 = doc.addObject("PartDesign::Boolean", "Boolean009")
body18.addObject(boolean10)
boolean10.Type = "Fuse"
boolean10.addObjects([body13])
doc.recompute()

boolean11 = doc.addObject("PartDesign::Boolean", "Boolean010")
body18.addObject(boolean11)
boolean11.Type = "Fuse"
boolean11.addObjects([body14])
doc.recompute()

boolean12 = doc.addObject("PartDesign::Boolean", "Boolean011")
body18.addObject(boolean12)
boolean12.Type = "Fuse"
boolean12.addObjects([body15])
doc.recompute()

boolean13 = doc.addObject("PartDesign::Boolean", "Boolean012")
body18.addObject(boolean13)
boolean13.Type = "Fuse"
boolean13.addObjects([body16])
doc.recompute()

boolean14 = doc.addObject("PartDesign::Boolean", "Boolean013")
body18.addObject(boolean14)
boolean14.Type = "Fuse"
boolean14.addObjects([body17])
doc.recompute()

chamfer2 = doc.addObject("PartDesign::Chamfer", "Chamfer001")
body18.addObject(chamfer2)
chamfer2.Base = (boolean14, edges_at(boolean14, [
    (27, 91, 55),
    (27, 91, 35),
    (27, 159, 55),
    (27, 159, 35),
]))
chamfer2.Size = 2
body19 = doc.addObject("PartDesign::Body", "Body018")

# Sketch on XY plane
sketch19 = doc.addObject("Sketcher::SketchObject", "Sketch018")
body19.addObject(sketch19)
sketch19.AttachmentSupport = (doc.getObject("XY_Plane018"), [""])
sketch19.MapMode = "FlatFace"
sketch19.AttachmentOffset = App.Placement(V(0, 0, 42), App.Rotation())
sketch19.addGeometry(Part.LineSegment(V(-2, 151, 0), V(-2, 99, 0)), False)
sketch19.addGeometry(Part.LineSegment(V(-2, 99, 0), V(0, 99, 0)), False)
sketch19.addGeometry(Part.LineSegment(V(0, 99, 0), V(0, 151, 0)), False)
sketch19.addGeometry(Part.LineSegment(V(0, 151, 0), V(-2, 151, 0)), False)
sketch19.addConstraint(Sketcher.Constraint("Coincident", 0, 2, 1, 1))
sketch19.addConstraint(Sketcher.Constraint("Coincident", 1, 2, 2, 1))
sketch19.addConstraint(Sketcher.Constraint("Coincident", 2, 2, 3, 1))
sketch19.addConstraint(Sketcher.Constraint("Coincident", 3, 2, 0, 1))
sketch19.addConstraint(Sketcher.Constraint("Vertical", 0))
sketch19.addConstraint(Sketcher.Constraint("Horizontal", 1))
sketch19.addConstraint(Sketcher.Constraint("Vertical", 2))
sketch19.addConstraint(Sketcher.Constraint("Horizontal", 3))
sketch19.addConstraint(Sketcher.Constraint("PointOnObject", 1, 2, -2))
sketch19.addConstraint(Sketcher.Constraint("DistanceX", 1, 1, 1, 2, Q("2 mm")))
sketch19.addConstraint(Sketcher.Constraint("DistanceY", 0, 2, 0, 1, Q("52 mm")))
sketch19.addConstraint(Sketcher.Constraint("DistanceY", -1, 1, 0, 2, Q("99 mm")))
pad19 = doc.addObject("PartDesign::Pad", "Pad018")
body19.addObject(pad19)
pad19.Profile = sketch19
pad19.Length = 6
body20 = doc.addObject("PartDesign::Body", "Body019")

# Sketch on XY plane
sketch20 = doc.addObject("Sketcher::SketchObject", "Sketch019")
body20.addObject(sketch20)
sketch20.AttachmentSupport = (doc.getObject("XY_Plane019"), [""])
sketch20.MapMode = "FlatFace"
sketch20.AttachmentOffset = App.Placement(V(0, 0, 30), App.Rotation())
sketch20.addGeometry(Part.LineSegment(V(47.15, 151, 0), V(47.15, 99, 0)), False)
sketch20.addGeometry(Part.LineSegment(V(47.15, 99, 0), V(52, 99, 0)), False)
sketch20.addGeometry(Part.LineSegment(V(52, 99, 0), V(52, 151, 0)), False)
sketch20.addGeometry(Part.LineSegment(V(52, 151, 0), V(47.15, 151, 0)), False)
sketch20.addConstraint(Sketcher.Constraint("Coincident", 0, 2, 1, 1))
sketch20.addConstraint(Sketcher.Constraint("Coincident", 1, 2, 2, 1))
sketch20.addConstraint(Sketcher.Constraint("Coincident", 2, 2, 3, 1))
sketch20.addConstraint(Sketcher.Constraint("Coincident", 3, 2, 0, 1))
sketch20.addConstraint(Sketcher.Constraint("Vertical", 0))
sketch20.addConstraint(Sketcher.Constraint("Horizontal", 1))
sketch20.addConstraint(Sketcher.Constraint("Vertical", 2))
sketch20.addConstraint(Sketcher.Constraint("Horizontal", 3))
sketch20.addConstraint(Sketcher.Constraint("DistanceY", 0, 2, 0, 1, Q("52 mm")))
sketch20.addConstraint(Sketcher.Constraint("DistanceY", -1, 1, 0, 2, Q("99 mm")))
sketch20.addConstraint(Sketcher.Constraint("DistanceX", -1, 1, 1, 2, Q("52 mm")))
sketch20.addConstraint(Sketcher.Constraint("DistanceX", 1, 1, 1, 2, Q("4.85 mm")))
pad20 = doc.addObject("PartDesign::Pad", "Pad019")
body20.addObject(pad20)
pad20.Profile = sketch20
pad20.Length = 15
doc.recompute()

boolean15 = doc.addObject("PartDesign::Boolean", "Boolean014")
body20.addObject(boolean15)
boolean15.Type = "Fuse"
boolean15.addObjects([body9])
doc.recompute()

boolean16 = doc.addObject("PartDesign::Boolean", "Boolean015")
body20.addObject(boolean16)
boolean16.Type = "Fuse"
boolean16.addObjects([body18])
doc.recompute()

boolean17 = doc.addObject("PartDesign::Boolean", "Boolean016")
body20.addObject(boolean17)
boolean17.Type = "Fuse"
boolean17.addObjects([body19])
doc.recompute()

boolean18 = doc.addObject("PartDesign::Boolean", "Boolean017")
body20.addObject(boolean18)
boolean18.Type = "Cut"
boolean18.addObjects([body3])
doc.recompute()

boolean19 = doc.addObject("PartDesign::Boolean", "Boolean018")
body20.addObject(boolean19)
boolean19.Type = "Cut"
boolean19.addObjects([body])
doc.recompute()

chamfer3 = doc.addObject("PartDesign::Chamfer", "Chamfer002")
body20.addObject(chamfer3)
chamfer3.Base = (boolean19, edges_at(boolean19, [
    (42, 83, 32.5),
    (42, 83, 57.5),
    (42, 167, 32.5),
    (42, 167, 57.5),
]))
chamfer3.Size = 10
doc.recompute()

chamfer4 = doc.addObject("PartDesign::Chamfer", "Chamfer003")
body20.addObject(chamfer4)
chamfer4.Base = (chamfer3, edges_at(chamfer3, [
    (52, 99, 37.5),
    (52, 99, 37.5),
    (52, 151, 37.5),
    (52, 151, 37.5),
]))
chamfer4.Size = 3

doc.recompute()
